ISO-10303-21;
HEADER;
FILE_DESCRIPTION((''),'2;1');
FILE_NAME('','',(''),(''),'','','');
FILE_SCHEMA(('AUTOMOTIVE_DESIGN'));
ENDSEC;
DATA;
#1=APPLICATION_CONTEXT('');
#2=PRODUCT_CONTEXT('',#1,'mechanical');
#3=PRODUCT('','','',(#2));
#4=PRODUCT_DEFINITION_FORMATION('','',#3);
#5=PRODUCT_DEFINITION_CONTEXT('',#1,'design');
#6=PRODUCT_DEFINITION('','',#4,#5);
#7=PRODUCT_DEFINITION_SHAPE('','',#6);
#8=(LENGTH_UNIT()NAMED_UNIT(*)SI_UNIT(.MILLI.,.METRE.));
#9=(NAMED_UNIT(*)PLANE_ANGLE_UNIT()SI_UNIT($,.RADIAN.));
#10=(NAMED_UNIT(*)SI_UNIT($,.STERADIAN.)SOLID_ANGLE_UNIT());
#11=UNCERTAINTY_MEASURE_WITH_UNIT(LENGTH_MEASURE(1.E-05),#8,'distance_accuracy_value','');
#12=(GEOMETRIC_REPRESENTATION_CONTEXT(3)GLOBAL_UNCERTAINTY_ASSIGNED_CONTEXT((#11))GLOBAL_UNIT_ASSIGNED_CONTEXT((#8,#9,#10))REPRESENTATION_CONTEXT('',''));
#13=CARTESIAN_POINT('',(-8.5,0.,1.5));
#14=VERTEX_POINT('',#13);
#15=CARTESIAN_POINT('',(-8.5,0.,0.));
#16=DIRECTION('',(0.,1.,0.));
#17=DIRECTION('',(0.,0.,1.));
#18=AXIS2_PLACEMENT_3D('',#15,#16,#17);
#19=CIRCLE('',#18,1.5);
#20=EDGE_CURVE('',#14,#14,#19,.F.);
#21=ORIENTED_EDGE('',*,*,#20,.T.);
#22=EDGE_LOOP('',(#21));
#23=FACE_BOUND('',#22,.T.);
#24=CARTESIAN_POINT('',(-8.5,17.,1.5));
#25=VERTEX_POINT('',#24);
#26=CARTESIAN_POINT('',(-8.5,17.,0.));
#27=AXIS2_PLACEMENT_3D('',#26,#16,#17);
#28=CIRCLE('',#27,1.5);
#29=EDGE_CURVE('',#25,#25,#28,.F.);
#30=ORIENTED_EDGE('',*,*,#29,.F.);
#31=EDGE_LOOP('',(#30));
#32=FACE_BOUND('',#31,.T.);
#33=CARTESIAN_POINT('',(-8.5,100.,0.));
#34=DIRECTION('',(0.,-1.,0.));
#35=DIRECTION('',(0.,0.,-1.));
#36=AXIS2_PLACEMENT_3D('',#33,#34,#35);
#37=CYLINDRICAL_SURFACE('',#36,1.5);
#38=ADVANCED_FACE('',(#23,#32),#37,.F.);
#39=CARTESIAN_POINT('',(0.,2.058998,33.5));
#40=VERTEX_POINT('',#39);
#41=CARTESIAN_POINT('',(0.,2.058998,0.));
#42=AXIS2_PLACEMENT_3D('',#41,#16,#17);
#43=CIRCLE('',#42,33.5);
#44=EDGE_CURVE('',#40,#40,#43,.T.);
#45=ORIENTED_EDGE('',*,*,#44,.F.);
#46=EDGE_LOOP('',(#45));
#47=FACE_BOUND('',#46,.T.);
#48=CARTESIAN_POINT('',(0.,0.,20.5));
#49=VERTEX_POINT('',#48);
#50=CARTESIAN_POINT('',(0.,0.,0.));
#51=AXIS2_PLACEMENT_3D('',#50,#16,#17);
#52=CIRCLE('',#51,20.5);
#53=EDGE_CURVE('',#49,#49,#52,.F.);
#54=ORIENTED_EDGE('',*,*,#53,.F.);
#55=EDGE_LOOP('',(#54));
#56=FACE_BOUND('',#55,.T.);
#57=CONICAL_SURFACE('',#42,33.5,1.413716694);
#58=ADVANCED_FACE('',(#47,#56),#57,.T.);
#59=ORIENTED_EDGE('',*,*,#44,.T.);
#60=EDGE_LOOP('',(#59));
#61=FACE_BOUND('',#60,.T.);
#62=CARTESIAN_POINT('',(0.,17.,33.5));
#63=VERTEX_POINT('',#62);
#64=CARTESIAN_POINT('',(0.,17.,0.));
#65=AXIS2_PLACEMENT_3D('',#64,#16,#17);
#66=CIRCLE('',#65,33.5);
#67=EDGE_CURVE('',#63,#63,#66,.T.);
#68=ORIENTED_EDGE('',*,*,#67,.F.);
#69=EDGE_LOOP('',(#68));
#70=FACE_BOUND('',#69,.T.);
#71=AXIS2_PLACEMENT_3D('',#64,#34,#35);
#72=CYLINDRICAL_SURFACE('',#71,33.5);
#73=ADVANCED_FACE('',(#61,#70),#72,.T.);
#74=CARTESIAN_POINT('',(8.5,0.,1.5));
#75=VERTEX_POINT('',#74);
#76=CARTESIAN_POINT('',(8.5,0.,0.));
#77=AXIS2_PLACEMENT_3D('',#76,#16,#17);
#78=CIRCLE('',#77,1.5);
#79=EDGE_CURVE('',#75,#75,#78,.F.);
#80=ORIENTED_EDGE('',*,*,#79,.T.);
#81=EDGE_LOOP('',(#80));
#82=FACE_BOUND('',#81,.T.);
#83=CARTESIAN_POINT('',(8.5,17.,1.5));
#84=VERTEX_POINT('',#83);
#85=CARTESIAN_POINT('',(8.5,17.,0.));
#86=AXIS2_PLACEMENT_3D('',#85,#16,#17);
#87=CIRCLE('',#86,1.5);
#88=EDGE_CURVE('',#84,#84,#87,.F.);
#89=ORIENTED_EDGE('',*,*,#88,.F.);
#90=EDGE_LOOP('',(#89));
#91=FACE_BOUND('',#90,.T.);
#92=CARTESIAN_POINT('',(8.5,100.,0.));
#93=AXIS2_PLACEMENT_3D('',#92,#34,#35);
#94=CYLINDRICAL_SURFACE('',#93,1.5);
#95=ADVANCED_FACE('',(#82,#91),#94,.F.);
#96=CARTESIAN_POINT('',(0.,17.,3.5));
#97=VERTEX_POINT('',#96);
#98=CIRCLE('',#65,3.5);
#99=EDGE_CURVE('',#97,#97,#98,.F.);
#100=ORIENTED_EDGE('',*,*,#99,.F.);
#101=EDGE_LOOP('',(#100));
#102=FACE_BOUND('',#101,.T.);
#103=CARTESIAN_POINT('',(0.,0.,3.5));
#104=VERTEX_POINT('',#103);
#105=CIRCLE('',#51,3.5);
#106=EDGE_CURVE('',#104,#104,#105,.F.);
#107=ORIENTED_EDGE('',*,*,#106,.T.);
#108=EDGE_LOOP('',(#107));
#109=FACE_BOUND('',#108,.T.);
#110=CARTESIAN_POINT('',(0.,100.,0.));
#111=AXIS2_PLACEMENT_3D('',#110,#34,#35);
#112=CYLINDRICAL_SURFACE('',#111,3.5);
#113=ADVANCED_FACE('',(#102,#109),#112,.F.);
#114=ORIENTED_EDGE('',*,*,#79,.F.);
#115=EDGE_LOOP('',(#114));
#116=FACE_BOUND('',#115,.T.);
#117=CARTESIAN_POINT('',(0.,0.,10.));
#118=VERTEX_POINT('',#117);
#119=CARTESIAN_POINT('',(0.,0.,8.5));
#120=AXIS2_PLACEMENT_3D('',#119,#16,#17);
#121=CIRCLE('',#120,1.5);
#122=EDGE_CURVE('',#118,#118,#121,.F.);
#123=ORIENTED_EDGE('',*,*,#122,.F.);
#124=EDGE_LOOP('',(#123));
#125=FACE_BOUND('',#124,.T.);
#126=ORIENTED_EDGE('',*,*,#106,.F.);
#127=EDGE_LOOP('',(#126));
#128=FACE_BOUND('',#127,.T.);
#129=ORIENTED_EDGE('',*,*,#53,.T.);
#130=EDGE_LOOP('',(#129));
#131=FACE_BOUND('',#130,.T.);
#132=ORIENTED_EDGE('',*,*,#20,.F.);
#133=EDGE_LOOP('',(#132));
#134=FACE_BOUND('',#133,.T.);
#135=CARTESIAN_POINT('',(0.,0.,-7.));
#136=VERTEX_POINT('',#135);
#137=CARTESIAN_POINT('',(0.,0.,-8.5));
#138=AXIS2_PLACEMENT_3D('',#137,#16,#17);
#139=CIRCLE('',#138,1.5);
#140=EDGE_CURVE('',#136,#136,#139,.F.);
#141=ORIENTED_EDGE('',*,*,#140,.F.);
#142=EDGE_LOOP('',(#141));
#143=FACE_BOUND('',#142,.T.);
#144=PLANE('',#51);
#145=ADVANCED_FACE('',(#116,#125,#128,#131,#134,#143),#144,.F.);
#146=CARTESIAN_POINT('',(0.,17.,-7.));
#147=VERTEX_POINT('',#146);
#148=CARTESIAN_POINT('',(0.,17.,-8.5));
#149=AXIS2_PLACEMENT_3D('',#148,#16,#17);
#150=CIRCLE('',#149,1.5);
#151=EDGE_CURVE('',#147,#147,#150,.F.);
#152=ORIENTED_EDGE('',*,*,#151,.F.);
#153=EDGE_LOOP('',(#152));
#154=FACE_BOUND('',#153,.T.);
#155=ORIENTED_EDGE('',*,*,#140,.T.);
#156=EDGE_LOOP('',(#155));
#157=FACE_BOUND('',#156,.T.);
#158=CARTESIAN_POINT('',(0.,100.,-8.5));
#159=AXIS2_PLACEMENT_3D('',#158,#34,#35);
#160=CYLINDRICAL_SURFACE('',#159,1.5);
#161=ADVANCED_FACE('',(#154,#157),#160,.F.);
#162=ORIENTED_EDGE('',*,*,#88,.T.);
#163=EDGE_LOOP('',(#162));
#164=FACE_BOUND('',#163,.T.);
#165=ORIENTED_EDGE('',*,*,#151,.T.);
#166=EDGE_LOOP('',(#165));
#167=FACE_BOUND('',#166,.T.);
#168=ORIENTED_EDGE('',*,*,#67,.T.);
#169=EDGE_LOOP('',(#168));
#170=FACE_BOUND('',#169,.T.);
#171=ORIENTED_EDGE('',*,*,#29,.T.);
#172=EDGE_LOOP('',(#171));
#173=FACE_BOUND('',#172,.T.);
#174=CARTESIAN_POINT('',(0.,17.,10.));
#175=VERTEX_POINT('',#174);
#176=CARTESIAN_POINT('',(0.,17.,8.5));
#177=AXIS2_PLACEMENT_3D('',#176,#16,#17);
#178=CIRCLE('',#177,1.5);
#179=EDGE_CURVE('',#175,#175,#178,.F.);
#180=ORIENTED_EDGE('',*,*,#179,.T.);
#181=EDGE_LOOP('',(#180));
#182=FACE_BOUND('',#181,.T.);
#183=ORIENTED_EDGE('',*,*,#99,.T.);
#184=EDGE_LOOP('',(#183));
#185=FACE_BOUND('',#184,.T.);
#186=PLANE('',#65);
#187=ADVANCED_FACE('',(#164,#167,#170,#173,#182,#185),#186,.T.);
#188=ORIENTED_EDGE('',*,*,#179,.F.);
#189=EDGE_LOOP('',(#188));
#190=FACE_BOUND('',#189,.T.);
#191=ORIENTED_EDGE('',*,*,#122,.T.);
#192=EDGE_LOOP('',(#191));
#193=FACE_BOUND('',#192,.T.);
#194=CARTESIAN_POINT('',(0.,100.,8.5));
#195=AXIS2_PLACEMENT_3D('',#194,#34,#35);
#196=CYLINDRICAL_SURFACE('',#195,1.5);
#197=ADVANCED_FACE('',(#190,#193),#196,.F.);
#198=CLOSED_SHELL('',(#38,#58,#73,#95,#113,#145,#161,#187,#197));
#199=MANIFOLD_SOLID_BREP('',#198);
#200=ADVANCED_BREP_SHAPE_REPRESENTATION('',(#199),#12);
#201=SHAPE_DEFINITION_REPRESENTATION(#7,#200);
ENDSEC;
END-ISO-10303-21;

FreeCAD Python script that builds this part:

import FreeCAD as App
import Part
import Sketcher
from FreeCAD import Vector


def edges_at(feature, points):
    """Names of the edges that pass closest to the given points."""
    edges = feature.Shape.Edges
    near = lambda p: min(range(len(edges)), key=lambda i: edges[i].distToShape(Part.Vertex(*p))[0])
    return sorted({f"Edge{near(p) + 1}" for p in points})

doc = App.newDocument("Part")
body = doc.addObject("PartDesign::Body", "Body")

sketch1 = doc.addObject("Sketcher::SketchObject", "Sketch")
body.addObject(sketch1)
sketch1.AttachmentSupport = (doc.XZ_Plane, [""])
sketch1.MapMode = "FlatFace"
sketch1.addGeometry(Part.Circle(Vector(0, 0, 0), Vector(0, 0, 1), 33.5), False)
sketch1.addConstraint([
    Sketcher.Constraint("Coincident", 0, 3, -1, 1),
    Sketcher.Constraint("Diameter", 0, 67.0),
])
pad1 = doc.addObject("PartDesign::Pad", "Pad")
body.addObject(pad1)
pad1.Profile = sketch1
pad1.Length = 17
pad1.Reversed = True

sketch2 = doc.addObject("Sketcher::SketchObject", "Sketch001")
body.addObject(sketch2)
sketch2.AttachmentSupport = (doc.XZ_Plane, [""])
sketch2.MapMode = "FlatFace"
sketch2.addGeometry(Part.Circle(Vector(0, 0, 0), Vector(0, 0, 1), 3.5), False)
sketch2.addConstraint([
    Sketcher.Constraint("Coincident", 0, 3, -1, 1),
    Sketcher.Constraint("Diameter", 0, 7.0),
])
pocket1 = doc.addObject("PartDesign::Pocket", "Pocket")
body.addObject(pocket1)
pocket1.Profile = sketch2
pocket1.Type = "ThroughAll"
pocket1.Midplane = True

sketch3 = doc.addObject("Sketcher::SketchObject", "Sketch002")
body.addObject(sketch3)
sketch3.AttachmentSupport = (doc.XZ_Plane, [""])
sketch3.MapMode = "FlatFace"
sketch3.addGeometry([
    Part.Circle(Vector(8.5, 0, 0), Vector(0, 0, 1), 1.5),
    Part.Circle(Vector(-8.5, 0, 0), Vector(0, 0, 1), 1.5),
    Part.Circle(Vector(0, 8.5, 0), Vector(0, 0, 1), 1.5),
    Part.Circle(Vector(0, -8.5, 0), Vector(0, 0, 1), 1.5),
], False)
sketch3.addConstraint([
    Sketcher.Constraint("Equal", 0, 1),
    Sketcher.Constraint("Equal", 1, 2),
    Sketcher.Constraint("Equal", 2, 3),
    Sketcher.Constraint("Symmetric", 0, 3, 1, 3, -1, 1),
    Sketcher.Constraint("Symmetric", 2, 3, 3, 3, -1, 1),
    Sketcher.Constraint("PointOnObject", 0, 3, -1),
    Sketcher.Constraint("PointOnObject", 2, 3, -2),
    Sketcher.Constraint("Diameter", 0, 3.0),
    Sketcher.Constraint("DistanceX", 1, 3, 0, 3, 17.0),
    Sketcher.Constraint("DistanceY", 3, 3, 2, 3, 17.0),
])
pocket2 = doc.addObject("PartDesign::Pocket", "Pocket001")
body.addObject(pocket2)
pocket2.Profile = sketch3
pocket2.Type = "ThroughAll"
pocket2.Midplane = True
doc.recompute()

chamfer = doc.addObject("PartDesign::Chamfer", "Chamfer")
body.addObject(chamfer)
chamfer.Base = (pocket2, edges_at(pocket2, [(-33.5, 0, 0)]))
chamfer.ChamferType = "Two distances"
chamfer.Size = 13
chamfer.Size2 = 2.058998
chamfer.FlipDirection = True

doc.recompute()
